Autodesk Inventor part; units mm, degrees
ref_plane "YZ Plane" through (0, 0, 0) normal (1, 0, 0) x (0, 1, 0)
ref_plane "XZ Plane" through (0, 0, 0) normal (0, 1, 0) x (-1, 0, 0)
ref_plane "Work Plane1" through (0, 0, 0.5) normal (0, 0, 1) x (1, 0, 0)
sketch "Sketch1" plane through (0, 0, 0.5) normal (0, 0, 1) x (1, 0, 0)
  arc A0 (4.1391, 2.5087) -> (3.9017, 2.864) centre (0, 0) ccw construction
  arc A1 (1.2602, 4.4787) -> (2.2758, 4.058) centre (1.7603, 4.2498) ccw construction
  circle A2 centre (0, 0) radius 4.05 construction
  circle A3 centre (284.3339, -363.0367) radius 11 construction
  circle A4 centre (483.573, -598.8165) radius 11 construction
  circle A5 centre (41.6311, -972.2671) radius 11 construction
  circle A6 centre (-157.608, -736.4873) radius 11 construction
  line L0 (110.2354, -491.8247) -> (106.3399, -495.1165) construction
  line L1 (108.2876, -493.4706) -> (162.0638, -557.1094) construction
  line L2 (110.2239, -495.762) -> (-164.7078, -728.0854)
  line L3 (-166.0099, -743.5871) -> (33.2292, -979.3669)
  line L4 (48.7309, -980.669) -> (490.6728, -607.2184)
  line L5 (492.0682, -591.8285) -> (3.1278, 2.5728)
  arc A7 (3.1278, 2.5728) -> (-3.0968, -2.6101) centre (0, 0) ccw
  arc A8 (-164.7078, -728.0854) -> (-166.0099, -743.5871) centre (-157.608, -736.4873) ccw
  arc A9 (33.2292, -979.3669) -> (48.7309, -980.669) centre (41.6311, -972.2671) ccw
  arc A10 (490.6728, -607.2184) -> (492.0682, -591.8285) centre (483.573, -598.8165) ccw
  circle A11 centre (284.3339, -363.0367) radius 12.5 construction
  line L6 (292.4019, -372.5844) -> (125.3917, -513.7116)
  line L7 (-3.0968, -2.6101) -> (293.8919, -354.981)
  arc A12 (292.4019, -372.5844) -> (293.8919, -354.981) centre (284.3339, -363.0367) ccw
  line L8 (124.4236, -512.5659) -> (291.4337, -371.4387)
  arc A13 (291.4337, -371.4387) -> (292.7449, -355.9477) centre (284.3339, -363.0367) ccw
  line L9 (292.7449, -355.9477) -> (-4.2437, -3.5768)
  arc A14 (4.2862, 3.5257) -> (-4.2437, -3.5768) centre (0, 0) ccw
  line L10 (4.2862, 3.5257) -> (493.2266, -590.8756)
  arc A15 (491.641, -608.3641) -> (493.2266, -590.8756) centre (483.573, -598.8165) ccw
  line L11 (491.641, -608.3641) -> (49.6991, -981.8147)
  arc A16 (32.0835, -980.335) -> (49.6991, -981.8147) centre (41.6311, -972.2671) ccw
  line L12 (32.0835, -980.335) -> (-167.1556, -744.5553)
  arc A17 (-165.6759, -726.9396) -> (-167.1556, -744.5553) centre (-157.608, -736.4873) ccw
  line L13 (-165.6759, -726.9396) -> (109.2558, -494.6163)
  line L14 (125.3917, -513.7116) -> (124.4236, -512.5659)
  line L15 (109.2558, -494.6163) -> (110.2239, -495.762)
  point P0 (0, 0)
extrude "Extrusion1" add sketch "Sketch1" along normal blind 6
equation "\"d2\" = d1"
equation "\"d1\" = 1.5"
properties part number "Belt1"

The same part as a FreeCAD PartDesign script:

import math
import FreeCAD as App
import Part
import Sketcher
from FreeCAD import Vector
Q = App.Units.Quantity

doc = App.newDocument("Part")
body = doc.addObject("PartDesign::Body", "Body")

# Sketch on XY plane
sketch1 = body.newObject("Sketcher::SketchObject", "Sketch")
sketch1.AttachmentSupport = (doc.getObject("XY_Plane"), [""])
sketch1.MapMode = "FlatFace"
sketch1.AttachmentOffset = App.Placement(Vector(0, 0, 0.5), App.Rotation())
sketch1.addGeometry(Part.LineSegment(Vector(-164.7078, -728.0854, 0), Vector(110.2239, -495.762, 0)), False)
sketch1.addGeometry(Part.LineSegment(Vector(110.2239, -495.762, 0), Vector(109.2558, -494.6163, 0)), False)
sketch1.addGeometry(Part.LineSegment(Vector(109.2558, -494.6163, 0), Vector(-165.6759, -726.9396, 0)), False)
sketch1.addGeometry(Part.ArcOfCircle(Part.Circle(Vector(-157.608, -736.4873, 0), Vector(0, 0, 1), 12.499983), math.radians(130.198137), math.radians(220.198783)), False)
sketch1.addGeometry(Part.LineSegment(Vector(-167.1556, -744.5553, 0), Vector(32.0835, -980.335, 0)), False)
sketch1.addGeometry(Part.ArcOfCircle(Part.Circle(Vector(41.6311, -972.2671, 0), Vector(0, 0, 1), 12.499907), math.radians(-139.801567), math.radians(-49.801217)), False)
sketch1.addGeometry(Part.LineSegment(Vector(49.6991, -981.8147, 0), Vector(491.641, -608.3641, 0)), False)
sketch1.addGeometry(Part.ArcOfCircle(Part.Circle(Vector(483.573, -598.8165, 0), Vector(0, 0, 1), 12.499972), math.radians(-49.801217), math.radians(39.440178)), False)
sketch1.addGeometry(Part.LineSegment(Vector(493.2266, -590.8756, 0), Vector(4.2862, 3.5257, 0)), False)
sketch1.addGeometry(Part.ArcOfCircle(Part.Circle(Vector(0, 0, 0), Vector(0, 0, 1), 5.549961), math.radians(39.439693), math.radians(220.125844)), False)
sketch1.addGeometry(Part.LineSegment(Vector(-4.2437, -3.5768, 0), Vector(292.7449, -355.9477, 0)), False)
sketch1.addGeometry(Part.ArcOfCircle(Part.Circle(Vector(284.3339, -363.0367, 0), Vector(0, 0, 1), 11), math.radians(-49.801752), math.radians(40.125023)), False)
sketch1.addGeometry(Part.LineSegment(Vector(291.4337, -371.4387, 0), Vector(124.4236, -512.5659, 0)), False)
sketch1.addGeometry(Part.LineSegment(Vector(124.4236, -512.5659, 0), Vector(125.3917, -513.7116, 0)), False)
sketch1.addGeometry(Part.LineSegment(Vector(125.3917, -513.7116, 0), Vector(292.4019, -372.5844, 0)), False)
sketch1.addGeometry(Part.ArcOfCircle(Part.Circle(Vector(284.3339, -363.0367, 0), Vector(0, 0, 1), 12.5), math.radians(-49.801513), math.radians(40.124952)), False)
sketch1.addGeometry(Part.LineSegment(Vector(293.8919, -354.981, 0), Vector(-3.0968, -2.6101, 0)), False)
sketch1.addGeometry(Part.ArcOfCircle(Part.Circle(Vector(0, 0, 0), Vector(0, 0, 1), 4.05), math.radians(39.439313), math.radians(220.125455)), False)
sketch1.addGeometry(Part.LineSegment(Vector(3.1278, 2.5728, 0), Vector(492.0682, -591.8285, 0)), False)
sketch1.addGeometry(Part.ArcOfCircle(Part.Circle(Vector(483.573, -598.8165, 0), Vector(0, 0, 1), 11), math.radians(-49.801416), math.radians(39.440105)), False)
sketch1.addGeometry(Part.LineSegment(Vector(490.6728, -607.2184, 0), Vector(48.7309, -980.669, 0)), False)
sketch1.addGeometry(Part.ArcOfCircle(Part.Circle(Vector(41.6311, -972.2671, 0), Vector(0, 0, 1), 10.999958), math.radians(-139.801416), math.radians(-49.801416)), False)
sketch1.addGeometry(Part.LineSegment(Vector(33.2292, -979.3669, 0), Vector(-166.0099, -743.5871, 0)), False)
sketch1.addGeometry(Part.ArcOfCircle(Part.Circle(Vector(-157.608, -736.4873, 0), Vector(0, 0, 1), 10.999958), math.radians(130.198584), math.radians(220.198584)), False)
sketch1.addConstraint(Sketcher.Constraint("Coincident", 0, 2, 1, 1))
sketch1.addConstraint(Sketcher.Constraint("Coincident", 1, 2, 2, 1))
sketch1.addConstraint(Sketcher.Constraint("Coincident", 2, 2, 3, 1))
sketch1.addConstraint(Sketcher.Constraint("Coincident", 3, 2, 4, 1))
sketch1.addConstraint(Sketcher.Constraint("Coincident", 4, 2, 5, 1))
sketch1.addConstraint(Sketcher.Constraint("Coincident", 5, 2, 6, 1))
sketch1.addConstraint(Sketcher.Constraint("Coincident", 6, 2, 7, 1))
sketch1.addConstraint(Sketcher.Constraint("Coincident", 7, 2, 8, 1))
sketch1.addConstraint(Sketcher.Constraint("Coincident", 8, 2, 9, 1))
sketch1.addConstraint(Sketcher.Constraint("Coincident", 9, 2, 10, 1))
sketch1.addConstraint(Sketcher.Constraint("Coincident", 10, 2, 11, 2))
sketch1.addConstraint(Sketcher.Constraint("Coincident", 11, 1, 12, 1))
sketch1.addConstraint(Sketcher.Constraint("Coincident", 12, 2, 13, 1))
sketch1.addConstraint(Sketcher.Constraint("Coincident", 13, 2, 14, 1))
sketch1.addConstraint(Sketcher.Constraint("Coincident", 14, 2, 15, 1))
sketch1.addConstraint(Sketcher.Constraint("Coincident", 15, 2, 16, 1))
sketch1.addConstraint(Sketcher.Constraint("Coincident", 16, 2, 17, 2))
sketch1.addConstraint(Sketcher.Constraint("Coincident", 17, 1, 18, 1))
sketch1.addConstraint(Sketcher.Constraint("Coincident", 18, 2, 19, 2))
sketch1.addConstraint(Sketcher.Constraint("Coincident", 19, 1, 20, 1))
sketch1.addConstraint(Sketcher.Constraint("Coincident", 20, 2, 21, 2))
sketch1.addConstraint(Sketcher.Constraint("Coincident", 21, 1, 22, 1))
sketch1.addConstraint(Sketcher.Constraint("Coincident", 22, 2, 23, 2))
sketch1.addConstraint(Sketcher.Constraint("Coincident", 23, 1, 0, 1))
sketch1.addConstraint(Sketcher.Constraint("Coincident", 9, 3, -1, 1))
sketch1.addConstraint(Sketcher.Constraint("Coincident", 17, 3, -1, 1))
sketch1.addConstraint(Sketcher.Constraint("Coincident", 15, 3, 11, 3))
sketch1.addConstraint(Sketcher.Constraint("Coincident", 19, 3, 7, 3))
sketch1.addConstraint(Sketcher.Constraint("Coincident", 21, 3, 5, 3))
sketch1.addConstraint(Sketcher.Constraint("Coincident", 23, 3, 3, 3))
sketch1.addConstraint(Sketcher.Constraint("Radius", 11, Q("11 mm")))
sketch1.addConstraint(Sketcher.Constraint("Radius", 19, Q("11 mm")))
sketch1.addConstraint(Sketcher.Constraint("Radius", 21, Q("11 mm")))
sketch1.addConstraint(Sketcher.Constraint("Radius", 23, Q("11 mm")))
sketch1.addConstraint(Sketcher.Constraint("Radius", 3, Q("12.5 mm")))
sketch1.addConstraint(Sketcher.Constraint("Radius", 5, Q("12.5 mm")))
sketch1.addConstraint(Sketcher.Constraint("Radius", 7, Q("12.5 mm")))
sketch1.addConstraint(Sketcher.Constraint("Radius", 15, Q("12.5 mm")))
sketch1.addConstraint(Sketcher.Constraint("Radius", 9, Q("5.55 mm")))
sketch1.addConstraint(Sketcher.Constraint("Radius", 17, Q("4.05 mm")))
sketch1.addConstraint(Sketcher.Constraint("Distance", 1, Q("1.5 mm")))
sketch1.addConstraint(Sketcher.Constraint("Distance", 6, Q("578.6 mm")))
sketch1.addConstraint(Sketcher.Constraint("Distance", 13, Q("1.5 mm")))
sketch1.addConstraint(Sketcher.Constraint("Distance", 20, Q("578.6 mm")))
sketch1.addConstraint(Sketcher.Constraint("DistanceY", 16, 2, -1, 1, Q("2.61 mm")))
sketch1.addConstraint(Sketcher.Constraint("DistanceX", 22, 2, -1, 1, Q("166.01 mm")))
sketch1.addConstraint(Sketcher.Constraint("DistanceX", 0, 2, 11, 3, Q("174.11 mm")))
sketch1.addConstraint(Sketcher.Constraint("DistanceY", 11, 3, 9, 2, Q("359.46 mm")))
sketch1.addConstraint(Sketcher.Constraint("DistanceX", 12, 2, 11, 1, Q("167.01 mm")))
sketch1.addConstraint(Sketcher.Constraint("DistanceX", 14, 2, 15, 2, Q("1.49 mm")))
sketch1.addConstraint(Sketcher.Constraint("DistanceY", 19, 1, 18, 2, Q("15.39 mm")))
sketch1.addConstraint(Sketcher.Constraint("DistanceY", 3, 2, 23, 1, Q("16.47 mm")))
sketch1.addConstraint(Sketcher.Constraint("Distance", 4, Q("308.688 mm")))
sketch1.addConstraint(Sketcher.Constraint("Distance", 22, Q("308.688 mm")))
sketch1.addConstraint(Sketcher.Constraint("DistanceX", 3, 3, -1, 1, Q("157.608 mm")))
sketch1.addConstraint(Sketcher.Constraint("DistanceX", -1, 1, 5, 3, Q("41.631 mm")))
sketch1.addConstraint(Sketcher.Constraint("DistanceY", 5, 3, -1, 1, Q("972.267 mm")))
sketch1.addConstraint(Sketcher.Constraint("DistanceX", -1, 1, 7, 3, Q("483.573 mm")))
sketch1.addConstraint(Sketcher.Constraint("DistanceX", -1, 1, 11, 3, Q("284.334 mm")))
sketch1.addConstraint(Sketcher.Constraint("DistanceY", 0, 2, -1, 1, Q("495.762 mm")))
sketch1.addConstraint(Sketcher.Constraint("DistanceX", 2, 2, -1, 1, Q("165.676 mm")))
sketch1.addConstraint(Sketcher.Constraint("DistanceY", 4, 2, -1, 1, Q("980.335 mm")))
sketch1.addConstraint(Sketcher.Constraint("DistanceX", -1, 1, 5, 2, Q("49.699 mm")))
sketch1.addConstraint(Sketcher.Constraint("DistanceX", -1, 1, 6, 2, Q("491.641 mm")))
sketch1.addConstraint(Sketcher.Constraint("DistanceX", -1, 1, 10, 2, Q("292.745 mm")))
sketch1.addConstraint(Sketcher.Constraint("DistanceY", 12, 2, -1, 1, Q("512.566 mm")))
sketch1.addConstraint(Sketcher.Constraint("DistanceX", -1, 1, 14, 2, Q("292.402 mm")))
sketch1.addConstraint(Sketcher.Constraint("DistanceY", 15, 2, -1, 1, Q("354.981 mm")))
sketch1.addConstraint(Sketcher.Constraint("DistanceX", -1, 1, 20, 2, Q("48.731 mm")))
sketch1.addConstraint(Sketcher.Constraint("DistanceY", 21, 1, -1, 1, Q("979.367 mm")))
sketch1.addConstraint(Sketcher.Constraint("DistanceX", 1, 2, 0, 2, Q("0.968 mm")))
sketch1.addConstraint(Sketcher.Constraint("DistanceY", 7, 3, 7, 2, Q("7.941 mm")))
sketch1.addConstraint(Sketcher.Constraint("DistanceY", 1, 2, 8, 2, Q("498.142 mm")))
sketch1.addConstraint(Sketcher.Constraint("DistanceY", 11, 1, 11, 3, Q("8.402 mm")))
sketch1.addConstraint(Sketcher.Constraint("DistanceX", 12, 2, 13, 2, Q("0.968 mm")))
sketch1.addConstraint(Sketcher.Constraint("DistanceY", 17, 1, 8, 2, Q("0.953 mm")))
pad1 = body.newObject("PartDesign::Pad", "Pad")
pad1.Profile = sketch1
pad1.Length = 6

doc.recompute()
